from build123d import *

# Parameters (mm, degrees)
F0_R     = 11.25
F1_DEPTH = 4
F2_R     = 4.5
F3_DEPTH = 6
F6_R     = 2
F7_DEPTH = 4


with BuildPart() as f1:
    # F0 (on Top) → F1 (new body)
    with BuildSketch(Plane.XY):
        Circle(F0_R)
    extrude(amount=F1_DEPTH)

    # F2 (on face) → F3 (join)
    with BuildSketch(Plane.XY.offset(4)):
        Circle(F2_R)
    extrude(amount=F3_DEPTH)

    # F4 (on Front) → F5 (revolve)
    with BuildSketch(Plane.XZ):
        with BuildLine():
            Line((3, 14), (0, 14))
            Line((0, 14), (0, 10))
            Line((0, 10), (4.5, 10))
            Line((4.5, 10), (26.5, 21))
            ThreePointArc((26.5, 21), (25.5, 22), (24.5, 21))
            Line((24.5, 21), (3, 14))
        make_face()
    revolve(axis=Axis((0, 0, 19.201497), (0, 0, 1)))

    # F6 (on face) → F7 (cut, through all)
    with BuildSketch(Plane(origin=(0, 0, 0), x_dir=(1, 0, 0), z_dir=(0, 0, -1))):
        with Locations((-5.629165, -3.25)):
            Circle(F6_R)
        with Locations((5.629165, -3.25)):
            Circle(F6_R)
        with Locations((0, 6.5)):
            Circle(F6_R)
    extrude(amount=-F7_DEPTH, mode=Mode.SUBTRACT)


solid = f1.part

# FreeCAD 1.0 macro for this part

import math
import FreeCAD as App
import Part
import Sketcher
from FreeCAD import Vector

doc = App.newDocument("Part")
body = doc.addObject("PartDesign::Body", "Body")

sketch1 = body.newObject("Sketcher::SketchObject", "Sketch")
sketch1.AttachmentSupport = (doc.getObject("XY_Plane"), [""])
sketch1.MapMode = "FlatFace"
sketch1.addGeometry(Part.Circle(Vector(0, 0, 0), Vector(0, 0, 1), 11), False)
sketch1.addConstraint(Sketcher.Constraint("Coincident", 0, 3, -1, 1))
sketch1.addConstraint(Sketcher.Constraint("Diameter", 0, 22.5))
pad1 = body.newObject("PartDesign::Pad", "Pad")
pad1.Profile = sketch1
pad1.Length = 4

sketch2 = body.newObject("Sketcher::SketchObject", "Sketch001")
sketch2.AttachmentSupport = (doc.getObject("XY_Plane"), [""])
sketch2.MapMode = "FlatFace"
sketch2.AttachmentOffset = App.Placement(Vector(0, 0, 4), App.Rotation())
sketch2.addGeometry(Part.Circle(Vector(0, 0, 0), Vector(0, 0, 1), 4.5), False)
sketch2.addConstraint(Sketcher.Constraint("Coincident", 0, 3, -1, 1))
sketch2.addConstraint(Sketcher.Constraint("Diameter", 0, 9.0))
pad2 = body.newObject("PartDesign::Pad", "Pad001")
pad2.Profile = sketch2
pad2.Length = 6

sketch3 = body.newObject("Sketcher::SketchObject", "Sketch002")
sketch3.AttachmentSupport = (doc.getObject("XZ_Plane"), [""])
sketch3.MapMode = "FlatFace"
sketch3.addGeometry(Part.LineSegment(Vector(3, 14, 0), Vector(0, 14, 0)), False)
sketch3.addGeometry(Part.LineSegment(Vector(0, 14, 0), Vector(0, 10, 0)), False)
sketch3.addGeometry(Part.LineSegment(Vector(0, 10, 0), Vector(4.5, 10, 0)), False)
sketch3.addGeometry(Part.LineSegment(Vector(4.5, 10, 0), Vector(26.5, 21, 0)), False)
sketch3.addGeometry(Part.ArcOfCircle(Part.Circle(Vector(25.5, 21, 0), Vector(0, 0, 1), 1), math.radians(0), math.radians(180)), False)
sketch3.addGeometry(Part.LineSegment(Vector(24.5, 21, 0), Vector(3, 14, 0)), False)
sketch3.addConstraint(Sketcher.Constraint("Coincident", 0, 2, 1, 1))
sketch3.addConstraint(Sketcher.Constraint("Coincident", 1, 2, 2, 1))
sketch3.addConstraint(Sketcher.Constraint("Coincident", 2, 2, 3, 1))
sketch3.addConstraint(Sketcher.Constraint("Coincident", 3, 2, 4, 1))
sketch3.addConstraint(Sketcher.Constraint("Coincident", 4, 2, 5, 1))
sketch3.addConstraint(Sketcher.Constraint("Coincident", 5, 2, 0, 1))
sketch3.addConstraint(Sketcher.Constraint("Horizontal", 0))
sketch3.addConstraint(Sketcher.Constraint("Vertical", 1))
sketch3.addConstraint(Sketcher.Constraint("Horizontal", 2))
sketch3.addConstraint(Sketcher.Constraint("PointOnObject", 0, 2, -2))
sketch3.addConstraint(Sketcher.Constraint("Horizontal", 4, 3, 3, 2))
sketch3.addConstraint(Sketcher.Constraint("Horizontal", 3, 2, 4, 2))
sketch3.addConstraint(Sketcher.Constraint("Radius", 4, 1.0))
sketch3.addConstraint(Sketcher.Constraint("DistanceX", 0, 2, 0, 1, 3.0))
sketch3.addConstraint(Sketcher.Constraint("DistanceY", 1, 2, 1, 1, 4.0))
sketch3.addConstraint(Sketcher.Constraint("DistanceX", 2, 1, 2, 2, 4.5))
sketch3.addConstraint(Sketcher.Constraint("DistanceY", -1, 1, 4, 3, 21.0))
sketch3.addConstraint(Sketcher.Constraint("DistanceY", -1, 1, 0, 2, 14.0))
sketch3.addConstraint(Sketcher.Constraint("DistanceX", 2, 2, 4, 3, 21.0))
revolution = body.newObject("PartDesign::Revolution", "Revolution")
revolution.Profile = sketch3
revolution.ReferenceAxis = (sketch3, ["V_Axis"])
revolution.Angle = 360

sketch4 = body.newObject("Sketcher::SketchObject", "Sketch003")
sketch4.AttachmentSupport = (doc.getObject("XY_Plane"), [""])
sketch4.MapMode = "FlatFace"
sketch4.addGeometry(Part.Circle(Vector(-5.6, 3.2, 0), Vector(0, 0, 1), 2), False)
sketch4.addGeometry(Part.Circle(Vector(5.6, 3.2, 0), Vector(0, 0, 1), 2), False)
sketch4.addGeometry(Part.Circle(Vector(0, -6.5, 0), Vector(0, 0, 1), 2), False)
sketch4.addConstraint(Sketcher.Constraint("Equal", 0, 1))
sketch4.addConstraint(Sketcher.Constraint("Equal", 1, 2))
sketch4.addConstraint(Sketcher.Constraint("Symmetric", 0, 3, 1, 3, -2))
sketch4.addConstraint(Sketcher.Constraint("PointOnObject", 2, 3, -2))
sketch4.addConstraint(Sketcher.Constraint("Diameter", 0, 4.0))
sketch4.addConstraint(Sketcher.Constraint("DistanceY", 2, 3, -1, 1, 6.5))
sketch4.addConstraint(Sketcher.Constraint("DistanceY", -1, 1, 0, 3, 3.25))
sketch4.addConstraint(Sketcher.Constraint("DistanceX", 0, 3, 1, 3, 11.25833))
pocket1 = body.newObject("PartDesign::Pocket", "Pocket")
pocket1.Profile = sketch4
pocket1.Length = 4
pocket1.Reversed = True

doc.recompute()
